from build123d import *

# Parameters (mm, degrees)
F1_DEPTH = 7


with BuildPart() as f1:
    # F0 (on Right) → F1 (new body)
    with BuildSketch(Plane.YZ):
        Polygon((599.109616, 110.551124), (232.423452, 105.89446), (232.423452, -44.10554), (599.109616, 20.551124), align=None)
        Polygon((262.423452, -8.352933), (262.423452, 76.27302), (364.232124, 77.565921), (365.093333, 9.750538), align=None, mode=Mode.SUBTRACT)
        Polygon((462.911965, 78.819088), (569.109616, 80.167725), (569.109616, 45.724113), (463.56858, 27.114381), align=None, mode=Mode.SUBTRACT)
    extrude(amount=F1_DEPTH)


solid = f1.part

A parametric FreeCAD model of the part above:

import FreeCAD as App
import Part
import Sketcher

V = App.Vector
Q = App.Units.Quantity

doc = App.newDocument("Part")
body = doc.addObject("PartDesign::Body", "Body")

sketch1 = doc.addObject("Sketcher::SketchObject", "Sketch")
body.addObject(sketch1)
sketch1.AttachmentSupport = (doc.YZ_Plane, [""])
sketch1.MapMode = "FlatFace"
sketch1.addGeometry(Part.LineSegment(V(599.109616, 110.551124, 0), V(232.423452, 105.89446, 0)), False)
sketch1.addGeometry(Part.LineSegment(V(232.423452, 105.89446, 0), V(232.423452, -44.10554, 0)), False)
sketch1.addGeometry(Part.LineSegment(V(232.423452, -44.10554, 0), V(599.109616, 20.551124, 0)), False)
sketch1.addGeometry(Part.LineSegment(V(599.109616, 20.551124, 0), V(599.109616, 110.551124, 0)), False)
sketch1.addGeometry(Part.LineSegment(V(365.093333, 9.750538, 0), V(262.423452, -8.352933, 0)), False)
sketch1.addGeometry(Part.LineSegment(V(262.423452, -8.352933, 0), V(262.423452, 76.27302, 0)), False)
sketch1.addGeometry(Part.LineSegment(V(262.423452, 76.27302, 0), V(364.232124, 77.565921, 0)), False)
sketch1.addGeometry(Part.LineSegment(V(364.232124, 77.565921, 0), V(365.093333, 9.750538, 0)), False)
sketch1.addGeometry(Part.LineSegment(V(463.56858, 27.114381, 0), V(462.911965, 78.819088, 0)), False)
sketch1.addGeometry(Part.LineSegment(V(462.911965, 78.819088, 0), V(569.109616, 80.167725, 0)), False)
sketch1.addGeometry(Part.LineSegment(V(569.109616, 80.167725, 0), V(569.109616, 45.724113, 0)), False)
sketch1.addGeometry(Part.LineSegment(V(569.109616, 45.724113, 0), V(463.56858, 27.114381, 0)), False)
sketch1.addConstraint(Sketcher.Constraint("Coincident", 0, 2, 1, 1))
sketch1.addConstraint(Sketcher.Constraint("Coincident", 1, 2, 2, 1))
sketch1.addConstraint(Sketcher.Constraint("Coincident", 2, 2, 3, 1))
sketch1.addConstraint(Sketcher.Constraint("Coincident", 3, 2, 0, 1))
sketch1.addConstraint(Sketcher.Constraint("Coincident", 4, 2, 5, 1))
sketch1.addConstraint(Sketcher.Constraint("Coincident", 5, 2, 6, 1))
sketch1.addConstraint(Sketcher.Constraint("Coincident", 6, 2, 7, 1))
sketch1.addConstraint(Sketcher.Constraint("Coincident", 7, 2, 4, 1))
sketch1.addConstraint(Sketcher.Constraint("Coincident", 8, 2, 9, 1))
sketch1.addConstraint(Sketcher.Constraint("Coincident", 9, 2, 10, 1))
sketch1.addConstraint(Sketcher.Constraint("Coincident", 10, 2, 11, 1))
sketch1.addConstraint(Sketcher.Constraint("Coincident", 11, 2, 8, 1))
sketch1.addConstraint(Sketcher.Constraint("Vertical", 1))
sketch1.addConstraint(Sketcher.Constraint("Vertical", 3))
sketch1.addConstraint(Sketcher.Constraint("Vertical", 5))
sketch1.addConstraint(Sketcher.Constraint("Vertical", 10))
sketch1.addConstraint(Sketcher.Constraint("DistanceY", 1, 2, 1, 1, Q("150 mm")))
sketch1.addConstraint(Sketcher.Constraint("DistanceY", 3, 1, 3, 2, Q("90 mm")))
sketch1.addConstraint(Sketcher.Constraint("DistanceX", 1, 2, 4, 2, Q("30 mm")))
sketch1.addConstraint(Sketcher.Constraint("DistanceX", 9, 2, 3, 2, Q("30 mm")))
sketch1.addConstraint(Sketcher.Constraint("DistanceY", 5, 2, 6, 2, Q("1.292901 mm")))
sketch1.addConstraint(Sketcher.Constraint("DistanceY", 9, 2, 3, 2, Q("30.383399 mm")))
sketch1.addConstraint(Sketcher.Constraint("Distance", 0, Q("366.715731 mm")))
sketch1.addConstraint(Sketcher.Constraint("Distance", 2, Q("372.342889 mm")))
sketch1.addConstraint(Sketcher.Constraint("Distance", 4, Q("104.25373 mm")))
sketch1.addConstraint(Sketcher.Constraint("Distance", 6, Q("101.816881 mm")))
sketch1.addConstraint(Sketcher.Constraint("Distance", 7, Q("67.820851 mm")))
sketch1.addConstraint(Sketcher.Constraint("DistanceY", 5, 1, 5, 2, Q("84.625953 mm")))
sketch1.addConstraint(Sketcher.Constraint("DistanceY", 10, 2, 10, 1, Q("34.443612 mm")))
sketch1.addConstraint(Sketcher.Constraint("DistanceX", -1, 1, 0, 2, Q("232.423452 mm")))
sketch1.addConstraint(Sketcher.Constraint("DistanceY", -1, 1, 0, 2, Q("105.89446 mm")))
sketch1.addConstraint(Sketcher.Constraint("DistanceY", -1, 1, 5, 2, Q("76.27302 mm")))
sketch1.addConstraint(Sketcher.Constraint("DistanceX", -1, 1, 11, 2, Q("463.56858 mm")))
sketch1.addConstraint(Sketcher.Constraint("DistanceY", -1, 1, 11, 2, Q("27.114381 mm")))
sketch1.addConstraint(Sketcher.Constraint("DistanceX", 6, 2, 8, 2, Q("98.679841 mm")))
sketch1.addConstraint(Sketcher.Constraint("DistanceY", 7, 2, 8, 2, Q("69.06855 mm")))
pad1 = doc.addObject("PartDesign::Pad", "Pad")
body.addObject(pad1)
pad1.Profile = sketch1
pad1.Length = 7

doc.recompute()
